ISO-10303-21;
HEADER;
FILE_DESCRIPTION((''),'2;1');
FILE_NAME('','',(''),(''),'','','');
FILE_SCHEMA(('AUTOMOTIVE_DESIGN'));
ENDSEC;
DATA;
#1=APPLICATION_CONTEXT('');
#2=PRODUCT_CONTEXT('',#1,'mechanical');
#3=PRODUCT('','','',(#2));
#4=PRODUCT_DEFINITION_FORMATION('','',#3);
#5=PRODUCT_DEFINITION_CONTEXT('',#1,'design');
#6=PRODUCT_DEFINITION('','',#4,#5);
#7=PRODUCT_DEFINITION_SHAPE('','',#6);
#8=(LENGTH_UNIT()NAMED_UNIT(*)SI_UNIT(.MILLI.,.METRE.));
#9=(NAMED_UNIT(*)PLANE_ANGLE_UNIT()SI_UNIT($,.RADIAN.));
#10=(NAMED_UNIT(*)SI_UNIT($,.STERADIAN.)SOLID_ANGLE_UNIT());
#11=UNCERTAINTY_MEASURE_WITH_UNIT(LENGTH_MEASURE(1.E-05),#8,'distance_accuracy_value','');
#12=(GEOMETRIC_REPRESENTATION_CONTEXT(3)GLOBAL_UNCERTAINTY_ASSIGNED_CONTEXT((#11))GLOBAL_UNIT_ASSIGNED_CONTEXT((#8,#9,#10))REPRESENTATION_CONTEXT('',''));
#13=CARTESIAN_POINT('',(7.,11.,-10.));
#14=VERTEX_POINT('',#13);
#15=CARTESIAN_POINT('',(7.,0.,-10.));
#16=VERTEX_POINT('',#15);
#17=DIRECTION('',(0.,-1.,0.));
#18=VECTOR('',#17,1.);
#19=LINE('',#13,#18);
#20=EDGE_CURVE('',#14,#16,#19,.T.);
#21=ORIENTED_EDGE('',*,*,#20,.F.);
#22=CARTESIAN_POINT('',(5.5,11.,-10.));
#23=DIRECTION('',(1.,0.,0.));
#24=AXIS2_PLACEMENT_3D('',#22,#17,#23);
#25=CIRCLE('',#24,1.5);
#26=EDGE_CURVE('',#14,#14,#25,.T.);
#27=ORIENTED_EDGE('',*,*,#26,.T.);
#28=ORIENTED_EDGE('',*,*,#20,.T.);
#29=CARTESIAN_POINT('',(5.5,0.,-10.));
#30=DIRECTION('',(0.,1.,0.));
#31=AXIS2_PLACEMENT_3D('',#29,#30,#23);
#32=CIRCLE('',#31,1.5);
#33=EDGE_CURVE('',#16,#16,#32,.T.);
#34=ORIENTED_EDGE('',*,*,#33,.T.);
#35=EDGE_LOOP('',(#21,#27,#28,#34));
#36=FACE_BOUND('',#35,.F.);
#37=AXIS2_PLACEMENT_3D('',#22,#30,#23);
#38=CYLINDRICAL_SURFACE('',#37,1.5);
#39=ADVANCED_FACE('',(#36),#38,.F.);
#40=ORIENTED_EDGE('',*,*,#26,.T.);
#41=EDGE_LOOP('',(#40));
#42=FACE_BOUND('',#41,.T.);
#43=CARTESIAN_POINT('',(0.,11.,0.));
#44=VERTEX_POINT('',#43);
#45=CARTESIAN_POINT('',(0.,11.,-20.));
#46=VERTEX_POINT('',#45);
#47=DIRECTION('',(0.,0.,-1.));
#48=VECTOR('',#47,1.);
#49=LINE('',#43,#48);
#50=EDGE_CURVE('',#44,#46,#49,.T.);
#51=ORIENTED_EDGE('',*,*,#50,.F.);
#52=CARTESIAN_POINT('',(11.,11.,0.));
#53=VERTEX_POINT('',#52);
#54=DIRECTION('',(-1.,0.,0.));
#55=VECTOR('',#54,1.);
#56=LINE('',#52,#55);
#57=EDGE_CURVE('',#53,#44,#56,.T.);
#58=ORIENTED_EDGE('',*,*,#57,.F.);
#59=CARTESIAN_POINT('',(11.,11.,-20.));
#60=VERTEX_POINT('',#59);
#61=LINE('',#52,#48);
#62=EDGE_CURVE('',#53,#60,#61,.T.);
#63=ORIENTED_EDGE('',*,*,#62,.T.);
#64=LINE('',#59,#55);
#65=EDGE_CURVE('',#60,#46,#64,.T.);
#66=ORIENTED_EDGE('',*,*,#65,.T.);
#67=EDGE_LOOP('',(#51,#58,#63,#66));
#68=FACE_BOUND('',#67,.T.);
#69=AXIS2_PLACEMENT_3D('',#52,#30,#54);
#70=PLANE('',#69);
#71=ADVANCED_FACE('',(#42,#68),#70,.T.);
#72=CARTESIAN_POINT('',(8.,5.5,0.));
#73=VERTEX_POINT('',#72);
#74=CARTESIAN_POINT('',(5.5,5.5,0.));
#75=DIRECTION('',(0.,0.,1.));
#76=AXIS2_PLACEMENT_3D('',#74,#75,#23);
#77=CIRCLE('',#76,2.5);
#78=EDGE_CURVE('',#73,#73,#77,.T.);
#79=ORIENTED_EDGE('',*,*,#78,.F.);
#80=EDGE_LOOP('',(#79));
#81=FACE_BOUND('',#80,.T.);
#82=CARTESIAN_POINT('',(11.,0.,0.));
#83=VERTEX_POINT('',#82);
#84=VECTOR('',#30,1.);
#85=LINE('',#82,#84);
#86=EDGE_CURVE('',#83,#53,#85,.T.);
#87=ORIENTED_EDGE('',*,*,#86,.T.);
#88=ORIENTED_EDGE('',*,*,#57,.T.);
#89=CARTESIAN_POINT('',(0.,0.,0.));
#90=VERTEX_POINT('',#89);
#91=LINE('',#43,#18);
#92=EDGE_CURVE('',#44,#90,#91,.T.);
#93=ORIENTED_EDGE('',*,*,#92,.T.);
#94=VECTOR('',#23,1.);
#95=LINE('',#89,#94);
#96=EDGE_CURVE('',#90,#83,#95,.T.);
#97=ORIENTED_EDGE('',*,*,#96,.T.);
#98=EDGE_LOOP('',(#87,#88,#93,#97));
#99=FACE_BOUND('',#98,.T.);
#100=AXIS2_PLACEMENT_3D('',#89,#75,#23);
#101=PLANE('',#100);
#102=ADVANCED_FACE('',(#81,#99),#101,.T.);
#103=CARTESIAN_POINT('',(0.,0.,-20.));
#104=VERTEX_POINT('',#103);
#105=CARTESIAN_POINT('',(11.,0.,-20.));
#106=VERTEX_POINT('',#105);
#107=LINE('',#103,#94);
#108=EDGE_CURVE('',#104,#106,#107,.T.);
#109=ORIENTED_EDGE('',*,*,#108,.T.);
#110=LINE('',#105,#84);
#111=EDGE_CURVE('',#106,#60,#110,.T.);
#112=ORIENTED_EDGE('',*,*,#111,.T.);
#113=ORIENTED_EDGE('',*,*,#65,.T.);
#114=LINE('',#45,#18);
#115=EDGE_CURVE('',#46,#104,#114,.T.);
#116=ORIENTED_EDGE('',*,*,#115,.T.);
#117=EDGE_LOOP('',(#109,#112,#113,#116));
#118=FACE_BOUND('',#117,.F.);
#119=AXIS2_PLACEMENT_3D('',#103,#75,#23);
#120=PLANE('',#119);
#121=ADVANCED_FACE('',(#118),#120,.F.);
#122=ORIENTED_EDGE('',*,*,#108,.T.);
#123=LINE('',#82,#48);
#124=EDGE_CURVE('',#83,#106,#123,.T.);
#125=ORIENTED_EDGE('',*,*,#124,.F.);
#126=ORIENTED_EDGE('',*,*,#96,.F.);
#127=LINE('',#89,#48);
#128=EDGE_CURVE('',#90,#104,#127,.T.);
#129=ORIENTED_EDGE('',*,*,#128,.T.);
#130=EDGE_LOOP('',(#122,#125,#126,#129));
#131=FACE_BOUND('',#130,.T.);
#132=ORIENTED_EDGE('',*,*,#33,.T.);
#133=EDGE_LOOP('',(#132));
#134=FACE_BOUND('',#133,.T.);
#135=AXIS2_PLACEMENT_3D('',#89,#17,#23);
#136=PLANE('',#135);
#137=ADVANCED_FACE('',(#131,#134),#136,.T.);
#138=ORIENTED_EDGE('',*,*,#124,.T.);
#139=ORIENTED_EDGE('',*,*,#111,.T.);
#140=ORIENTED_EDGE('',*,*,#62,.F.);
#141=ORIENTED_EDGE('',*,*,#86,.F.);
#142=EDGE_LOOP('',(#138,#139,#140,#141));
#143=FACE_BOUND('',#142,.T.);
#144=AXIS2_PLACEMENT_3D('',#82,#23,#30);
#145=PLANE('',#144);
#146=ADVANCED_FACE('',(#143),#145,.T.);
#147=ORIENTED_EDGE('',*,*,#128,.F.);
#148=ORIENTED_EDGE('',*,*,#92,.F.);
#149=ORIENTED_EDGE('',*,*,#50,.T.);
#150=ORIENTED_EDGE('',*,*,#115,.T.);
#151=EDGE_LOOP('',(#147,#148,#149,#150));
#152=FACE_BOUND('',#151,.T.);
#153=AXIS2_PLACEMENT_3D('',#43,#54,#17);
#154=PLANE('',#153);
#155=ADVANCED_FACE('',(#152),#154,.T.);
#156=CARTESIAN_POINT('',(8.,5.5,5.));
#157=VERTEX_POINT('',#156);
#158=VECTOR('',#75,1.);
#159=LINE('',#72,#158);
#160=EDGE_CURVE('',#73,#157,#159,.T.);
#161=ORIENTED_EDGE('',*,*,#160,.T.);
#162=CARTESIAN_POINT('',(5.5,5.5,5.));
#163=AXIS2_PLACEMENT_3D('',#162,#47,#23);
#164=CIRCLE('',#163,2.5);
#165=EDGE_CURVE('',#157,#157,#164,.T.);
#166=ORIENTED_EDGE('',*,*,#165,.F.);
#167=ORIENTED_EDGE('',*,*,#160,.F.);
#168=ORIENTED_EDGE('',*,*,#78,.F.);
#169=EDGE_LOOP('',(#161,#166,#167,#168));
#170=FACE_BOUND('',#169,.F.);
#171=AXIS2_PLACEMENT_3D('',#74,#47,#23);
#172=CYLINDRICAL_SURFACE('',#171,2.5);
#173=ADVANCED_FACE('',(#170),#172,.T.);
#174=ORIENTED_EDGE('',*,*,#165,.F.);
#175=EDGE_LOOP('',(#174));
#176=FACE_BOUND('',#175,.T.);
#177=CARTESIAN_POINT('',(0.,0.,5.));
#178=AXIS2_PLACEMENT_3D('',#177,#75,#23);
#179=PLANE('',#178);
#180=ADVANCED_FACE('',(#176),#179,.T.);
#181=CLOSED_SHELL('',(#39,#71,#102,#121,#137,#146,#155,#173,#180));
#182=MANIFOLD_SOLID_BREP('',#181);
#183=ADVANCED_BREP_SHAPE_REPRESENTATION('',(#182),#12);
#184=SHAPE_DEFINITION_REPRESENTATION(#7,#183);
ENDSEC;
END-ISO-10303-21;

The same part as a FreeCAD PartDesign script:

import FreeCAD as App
import Part
import Sketcher


def add_polygon(sketch, points):
    """Adds a closed chain of lines whose ends are joined by coincident constraints."""
    first, n = sketch.GeometryCount, len(points)
    for a, b in zip(points, points[1:] + points[:1]):
        sketch.addGeometry(Part.LineSegment(App.Vector(*a, 0), App.Vector(*b, 0)), False)
    for i in range(n):
        sketch.addConstraint(Sketcher.Constraint("Coincident", first + i, 2, first + (i + 1) % n, 1))

doc = App.newDocument("Part")
body = doc.addObject("PartDesign::Body", "Body")

sketch1 = body.newObject("Sketcher::SketchObject", "Sketch")
sketch1.AttachmentSupport = (doc.getObject("XY_Plane"), [""])
sketch1.MapMode = "FlatFace"
add_polygon(sketch1, [(0, 11), (0, 0), (11, 0), (11, 11)])
sketch1.addConstraint([
    Sketcher.Constraint("Vertical", 0),
    Sketcher.Constraint("Horizontal", 1),
    Sketcher.Constraint("Vertical", 2),
    Sketcher.Constraint("Horizontal", 3),
    Sketcher.Constraint("Coincident", 0, 2, -1, 1),
    Sketcher.Constraint("Equal", 3, 0),
    Sketcher.Constraint("DistanceX", 1, 1, 1, 2, 11.0),
])
pad1 = body.newObject("PartDesign::Pad", "Pad")
pad1.Profile = sketch1
pad1.Length = 20
pad1.Reversed = True

sketch2 = body.newObject("Sketcher::SketchObject", "Sketch001")
sketch2.AttachmentSupport = (doc.getObject("XY_Plane"), [""])
sketch2.MapMode = "FlatFace"
sketch2.addGeometry(Part.Circle(App.Vector(5.5, 5.5, 0), App.Vector(0, 0, 1), 2.5), False)
sketch2.addConstraint([
    Sketcher.Constraint("Diameter", 0, 5.0),
    Sketcher.Constraint("DistanceX", -1, 1, 0, 3, 5.5),
    Sketcher.Constraint("DistanceY", -1, 1, 0, 3, 5.5),
])
pad2 = body.newObject("PartDesign::Pad", "Pad001")
pad2.Profile = sketch2
pad2.Length = 5

sketch3 = body.newObject("Sketcher::SketchObject", "Sketch002")
sketch3.AttachmentSupport = (doc.getObject("XZ_Plane"), [""])
sketch3.MapMode = "FlatFace"
sketch3.AttachmentOffset = App.Placement(App.Vector(0, 0, -11), App.Rotation())
sketch3.addGeometry(Part.Circle(App.Vector(5.5, -10, 0), App.Vector(0, 0, 1), 1.5), False)
sketch3.addConstraint([
    Sketcher.Constraint("Diameter", 0, 3.0),
    Sketcher.Constraint("DistanceY", 0, 3, -1, 1, 10.0),
    Sketcher.Constraint("DistanceX", -1, 1, 0, 3, 5.5),
])
pocket1 = body.newObject("PartDesign::Pocket", "Pocket")
pocket1.Profile = sketch3
pocket1.Type = "ThroughAll"
pocket1.Reversed = True

doc.recompute()
